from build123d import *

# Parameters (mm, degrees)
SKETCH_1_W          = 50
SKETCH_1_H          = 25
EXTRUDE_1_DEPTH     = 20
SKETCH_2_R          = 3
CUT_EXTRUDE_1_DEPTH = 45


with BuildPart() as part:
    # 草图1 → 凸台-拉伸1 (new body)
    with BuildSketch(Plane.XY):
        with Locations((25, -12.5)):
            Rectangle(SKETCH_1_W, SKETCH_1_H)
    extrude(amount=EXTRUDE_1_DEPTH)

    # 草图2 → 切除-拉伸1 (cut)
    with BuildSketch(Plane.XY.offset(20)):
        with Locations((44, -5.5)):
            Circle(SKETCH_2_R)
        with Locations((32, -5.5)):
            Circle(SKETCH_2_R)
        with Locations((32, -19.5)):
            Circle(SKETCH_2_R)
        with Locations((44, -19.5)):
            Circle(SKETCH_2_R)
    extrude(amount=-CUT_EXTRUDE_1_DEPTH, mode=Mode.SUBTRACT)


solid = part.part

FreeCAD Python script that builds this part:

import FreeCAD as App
import Part
import Sketcher

V = App.Vector
Q = App.Units.Quantity

doc = App.newDocument("Part")
params = doc.addObject("Spreadsheet::Sheet", "Params")
for row, (alias, value) in enumerate([
    ("sketch1_width", "50 mm"),
    ("sketch1_height", "25 mm"),
    ("pad1_length", "20 mm"),
    ("sketch2_diameter", "6 mm"),
    ("pocket1_length", "45 mm"),
], start=1):
    params.set(f"A{row}", alias)
    params.set(f"B{row}", "=" + value)
    params.setAlias(f"B{row}", alias)

body = doc.addObject("PartDesign::Body", "Body")

sketch1 = doc.addObject("Sketcher::SketchObject", "Sketch")
body.addObject(sketch1)
sketch1.AttachmentSupport = (doc.XY_Plane, [""])
sketch1.MapMode = "FlatFace"
sketch1.addGeometry(Part.LineSegment(V(0, 0, 0), V(0, -25, 0)), False)
sketch1.addGeometry(Part.LineSegment(V(0, -25, 0), V(50, -25, 0)), False)
sketch1.addGeometry(Part.LineSegment(V(50, -25, 0), V(50, 0, 0)), False)
sketch1.addGeometry(Part.LineSegment(V(50, 0, 0), V(0, 0, 0)), False)
sketch1.addConstraint(Sketcher.Constraint("Coincident", 0, 2, 1, 1))
sketch1.addConstraint(Sketcher.Constraint("Coincident", 1, 2, 2, 1))
sketch1.addConstraint(Sketcher.Constraint("Coincident", 2, 2, 3, 1))
sketch1.addConstraint(Sketcher.Constraint("Coincident", 3, 2, 0, 1))
sketch1.addConstraint(Sketcher.Constraint("Vertical", 0))
sketch1.addConstraint(Sketcher.Constraint("Horizontal", 1))
sketch1.addConstraint(Sketcher.Constraint("Vertical", 2))
sketch1.addConstraint(Sketcher.Constraint("Horizontal", 3))
sketch1.addConstraint(Sketcher.Constraint("Coincident", 3, 2, -1, 1))
sketch1.addConstraint(Sketcher.Constraint("DistanceX", 1, 1, 1, 2, Q("50 mm")))
sketch1.addConstraint(Sketcher.Constraint("DistanceY", 0, 2, 0, 1, Q("25 mm")))
sketch1.setExpression("Constraints[9]", "Params.sketch1_width")
sketch1.setExpression("Constraints[10]", "Params.sketch1_height")
pad1 = doc.addObject("PartDesign::Pad", "Pad")
body.addObject(pad1)
pad1.Profile = sketch1
pad1.setExpression("Length", "Params.pad1_length")

sketch2 = doc.addObject("Sketcher::SketchObject", "Sketch001")
body.addObject(sketch2)
sketch2.AttachmentSupport = (doc.XY_Plane, [""])
sketch2.MapMode = "FlatFace"
sketch2.AttachmentOffset = App.Placement(V(0, 0, 20), App.Rotation())
sketch2.addGeometry(Part.Circle(V(44, -5.5, 0), V(0, 0, 1), 3), False)
sketch2.addGeometry(Part.Circle(V(32, -5.5, 0), V(0, 0, 1), 3), False)
sketch2.addGeometry(Part.Circle(V(32, -19.5, 0), V(0, 0, 1), 3), False)
sketch2.addGeometry(Part.Circle(V(44, -19.5, 0), V(0, 0, 1), 3), False)
sketch2.addConstraint(Sketcher.Constraint("Equal", 0, 1))
sketch2.addConstraint(Sketcher.Constraint("Equal", 1, 2))
sketch2.addConstraint(Sketcher.Constraint("Equal", 2, 3))
sketch2.addConstraint(Sketcher.Constraint("Horizontal", 0, 3, 1, 3))
sketch2.addConstraint(Sketcher.Constraint("Horizontal", 2, 3, 3, 3))
sketch2.addConstraint(Sketcher.Constraint("Vertical", 1, 3, 2, 3))
sketch2.addConstraint(Sketcher.Constraint("Vertical", 0, 3, 3, 3))
sketch2.addConstraint(Sketcher.Constraint("Diameter", 0, Q("6 mm")))
sketch2.addConstraint(Sketcher.Constraint("DistanceX", -1, 1, 0, 3, Q("44 mm")))
sketch2.addConstraint(Sketcher.Constraint("DistanceX", -1, 1, 1, 3, Q("32 mm")))
sketch2.addConstraint(Sketcher.Constraint("DistanceY", 2, 3, 1, 3, Q("14 mm")))
sketch2.addConstraint(Sketcher.Constraint("DistanceY", 0, 3, -1, 1, Q("5.5 mm")))
sketch2.setExpression("Constraints[7]", "Params.sketch2_diameter")
pocket1 = doc.addObject("PartDesign::Pocket", "Pocket")
body.addObject(pocket1)
pocket1.Profile = sketch2
pocket1.setExpression("Length", "Params.pocket1_length")

doc.recompute()
